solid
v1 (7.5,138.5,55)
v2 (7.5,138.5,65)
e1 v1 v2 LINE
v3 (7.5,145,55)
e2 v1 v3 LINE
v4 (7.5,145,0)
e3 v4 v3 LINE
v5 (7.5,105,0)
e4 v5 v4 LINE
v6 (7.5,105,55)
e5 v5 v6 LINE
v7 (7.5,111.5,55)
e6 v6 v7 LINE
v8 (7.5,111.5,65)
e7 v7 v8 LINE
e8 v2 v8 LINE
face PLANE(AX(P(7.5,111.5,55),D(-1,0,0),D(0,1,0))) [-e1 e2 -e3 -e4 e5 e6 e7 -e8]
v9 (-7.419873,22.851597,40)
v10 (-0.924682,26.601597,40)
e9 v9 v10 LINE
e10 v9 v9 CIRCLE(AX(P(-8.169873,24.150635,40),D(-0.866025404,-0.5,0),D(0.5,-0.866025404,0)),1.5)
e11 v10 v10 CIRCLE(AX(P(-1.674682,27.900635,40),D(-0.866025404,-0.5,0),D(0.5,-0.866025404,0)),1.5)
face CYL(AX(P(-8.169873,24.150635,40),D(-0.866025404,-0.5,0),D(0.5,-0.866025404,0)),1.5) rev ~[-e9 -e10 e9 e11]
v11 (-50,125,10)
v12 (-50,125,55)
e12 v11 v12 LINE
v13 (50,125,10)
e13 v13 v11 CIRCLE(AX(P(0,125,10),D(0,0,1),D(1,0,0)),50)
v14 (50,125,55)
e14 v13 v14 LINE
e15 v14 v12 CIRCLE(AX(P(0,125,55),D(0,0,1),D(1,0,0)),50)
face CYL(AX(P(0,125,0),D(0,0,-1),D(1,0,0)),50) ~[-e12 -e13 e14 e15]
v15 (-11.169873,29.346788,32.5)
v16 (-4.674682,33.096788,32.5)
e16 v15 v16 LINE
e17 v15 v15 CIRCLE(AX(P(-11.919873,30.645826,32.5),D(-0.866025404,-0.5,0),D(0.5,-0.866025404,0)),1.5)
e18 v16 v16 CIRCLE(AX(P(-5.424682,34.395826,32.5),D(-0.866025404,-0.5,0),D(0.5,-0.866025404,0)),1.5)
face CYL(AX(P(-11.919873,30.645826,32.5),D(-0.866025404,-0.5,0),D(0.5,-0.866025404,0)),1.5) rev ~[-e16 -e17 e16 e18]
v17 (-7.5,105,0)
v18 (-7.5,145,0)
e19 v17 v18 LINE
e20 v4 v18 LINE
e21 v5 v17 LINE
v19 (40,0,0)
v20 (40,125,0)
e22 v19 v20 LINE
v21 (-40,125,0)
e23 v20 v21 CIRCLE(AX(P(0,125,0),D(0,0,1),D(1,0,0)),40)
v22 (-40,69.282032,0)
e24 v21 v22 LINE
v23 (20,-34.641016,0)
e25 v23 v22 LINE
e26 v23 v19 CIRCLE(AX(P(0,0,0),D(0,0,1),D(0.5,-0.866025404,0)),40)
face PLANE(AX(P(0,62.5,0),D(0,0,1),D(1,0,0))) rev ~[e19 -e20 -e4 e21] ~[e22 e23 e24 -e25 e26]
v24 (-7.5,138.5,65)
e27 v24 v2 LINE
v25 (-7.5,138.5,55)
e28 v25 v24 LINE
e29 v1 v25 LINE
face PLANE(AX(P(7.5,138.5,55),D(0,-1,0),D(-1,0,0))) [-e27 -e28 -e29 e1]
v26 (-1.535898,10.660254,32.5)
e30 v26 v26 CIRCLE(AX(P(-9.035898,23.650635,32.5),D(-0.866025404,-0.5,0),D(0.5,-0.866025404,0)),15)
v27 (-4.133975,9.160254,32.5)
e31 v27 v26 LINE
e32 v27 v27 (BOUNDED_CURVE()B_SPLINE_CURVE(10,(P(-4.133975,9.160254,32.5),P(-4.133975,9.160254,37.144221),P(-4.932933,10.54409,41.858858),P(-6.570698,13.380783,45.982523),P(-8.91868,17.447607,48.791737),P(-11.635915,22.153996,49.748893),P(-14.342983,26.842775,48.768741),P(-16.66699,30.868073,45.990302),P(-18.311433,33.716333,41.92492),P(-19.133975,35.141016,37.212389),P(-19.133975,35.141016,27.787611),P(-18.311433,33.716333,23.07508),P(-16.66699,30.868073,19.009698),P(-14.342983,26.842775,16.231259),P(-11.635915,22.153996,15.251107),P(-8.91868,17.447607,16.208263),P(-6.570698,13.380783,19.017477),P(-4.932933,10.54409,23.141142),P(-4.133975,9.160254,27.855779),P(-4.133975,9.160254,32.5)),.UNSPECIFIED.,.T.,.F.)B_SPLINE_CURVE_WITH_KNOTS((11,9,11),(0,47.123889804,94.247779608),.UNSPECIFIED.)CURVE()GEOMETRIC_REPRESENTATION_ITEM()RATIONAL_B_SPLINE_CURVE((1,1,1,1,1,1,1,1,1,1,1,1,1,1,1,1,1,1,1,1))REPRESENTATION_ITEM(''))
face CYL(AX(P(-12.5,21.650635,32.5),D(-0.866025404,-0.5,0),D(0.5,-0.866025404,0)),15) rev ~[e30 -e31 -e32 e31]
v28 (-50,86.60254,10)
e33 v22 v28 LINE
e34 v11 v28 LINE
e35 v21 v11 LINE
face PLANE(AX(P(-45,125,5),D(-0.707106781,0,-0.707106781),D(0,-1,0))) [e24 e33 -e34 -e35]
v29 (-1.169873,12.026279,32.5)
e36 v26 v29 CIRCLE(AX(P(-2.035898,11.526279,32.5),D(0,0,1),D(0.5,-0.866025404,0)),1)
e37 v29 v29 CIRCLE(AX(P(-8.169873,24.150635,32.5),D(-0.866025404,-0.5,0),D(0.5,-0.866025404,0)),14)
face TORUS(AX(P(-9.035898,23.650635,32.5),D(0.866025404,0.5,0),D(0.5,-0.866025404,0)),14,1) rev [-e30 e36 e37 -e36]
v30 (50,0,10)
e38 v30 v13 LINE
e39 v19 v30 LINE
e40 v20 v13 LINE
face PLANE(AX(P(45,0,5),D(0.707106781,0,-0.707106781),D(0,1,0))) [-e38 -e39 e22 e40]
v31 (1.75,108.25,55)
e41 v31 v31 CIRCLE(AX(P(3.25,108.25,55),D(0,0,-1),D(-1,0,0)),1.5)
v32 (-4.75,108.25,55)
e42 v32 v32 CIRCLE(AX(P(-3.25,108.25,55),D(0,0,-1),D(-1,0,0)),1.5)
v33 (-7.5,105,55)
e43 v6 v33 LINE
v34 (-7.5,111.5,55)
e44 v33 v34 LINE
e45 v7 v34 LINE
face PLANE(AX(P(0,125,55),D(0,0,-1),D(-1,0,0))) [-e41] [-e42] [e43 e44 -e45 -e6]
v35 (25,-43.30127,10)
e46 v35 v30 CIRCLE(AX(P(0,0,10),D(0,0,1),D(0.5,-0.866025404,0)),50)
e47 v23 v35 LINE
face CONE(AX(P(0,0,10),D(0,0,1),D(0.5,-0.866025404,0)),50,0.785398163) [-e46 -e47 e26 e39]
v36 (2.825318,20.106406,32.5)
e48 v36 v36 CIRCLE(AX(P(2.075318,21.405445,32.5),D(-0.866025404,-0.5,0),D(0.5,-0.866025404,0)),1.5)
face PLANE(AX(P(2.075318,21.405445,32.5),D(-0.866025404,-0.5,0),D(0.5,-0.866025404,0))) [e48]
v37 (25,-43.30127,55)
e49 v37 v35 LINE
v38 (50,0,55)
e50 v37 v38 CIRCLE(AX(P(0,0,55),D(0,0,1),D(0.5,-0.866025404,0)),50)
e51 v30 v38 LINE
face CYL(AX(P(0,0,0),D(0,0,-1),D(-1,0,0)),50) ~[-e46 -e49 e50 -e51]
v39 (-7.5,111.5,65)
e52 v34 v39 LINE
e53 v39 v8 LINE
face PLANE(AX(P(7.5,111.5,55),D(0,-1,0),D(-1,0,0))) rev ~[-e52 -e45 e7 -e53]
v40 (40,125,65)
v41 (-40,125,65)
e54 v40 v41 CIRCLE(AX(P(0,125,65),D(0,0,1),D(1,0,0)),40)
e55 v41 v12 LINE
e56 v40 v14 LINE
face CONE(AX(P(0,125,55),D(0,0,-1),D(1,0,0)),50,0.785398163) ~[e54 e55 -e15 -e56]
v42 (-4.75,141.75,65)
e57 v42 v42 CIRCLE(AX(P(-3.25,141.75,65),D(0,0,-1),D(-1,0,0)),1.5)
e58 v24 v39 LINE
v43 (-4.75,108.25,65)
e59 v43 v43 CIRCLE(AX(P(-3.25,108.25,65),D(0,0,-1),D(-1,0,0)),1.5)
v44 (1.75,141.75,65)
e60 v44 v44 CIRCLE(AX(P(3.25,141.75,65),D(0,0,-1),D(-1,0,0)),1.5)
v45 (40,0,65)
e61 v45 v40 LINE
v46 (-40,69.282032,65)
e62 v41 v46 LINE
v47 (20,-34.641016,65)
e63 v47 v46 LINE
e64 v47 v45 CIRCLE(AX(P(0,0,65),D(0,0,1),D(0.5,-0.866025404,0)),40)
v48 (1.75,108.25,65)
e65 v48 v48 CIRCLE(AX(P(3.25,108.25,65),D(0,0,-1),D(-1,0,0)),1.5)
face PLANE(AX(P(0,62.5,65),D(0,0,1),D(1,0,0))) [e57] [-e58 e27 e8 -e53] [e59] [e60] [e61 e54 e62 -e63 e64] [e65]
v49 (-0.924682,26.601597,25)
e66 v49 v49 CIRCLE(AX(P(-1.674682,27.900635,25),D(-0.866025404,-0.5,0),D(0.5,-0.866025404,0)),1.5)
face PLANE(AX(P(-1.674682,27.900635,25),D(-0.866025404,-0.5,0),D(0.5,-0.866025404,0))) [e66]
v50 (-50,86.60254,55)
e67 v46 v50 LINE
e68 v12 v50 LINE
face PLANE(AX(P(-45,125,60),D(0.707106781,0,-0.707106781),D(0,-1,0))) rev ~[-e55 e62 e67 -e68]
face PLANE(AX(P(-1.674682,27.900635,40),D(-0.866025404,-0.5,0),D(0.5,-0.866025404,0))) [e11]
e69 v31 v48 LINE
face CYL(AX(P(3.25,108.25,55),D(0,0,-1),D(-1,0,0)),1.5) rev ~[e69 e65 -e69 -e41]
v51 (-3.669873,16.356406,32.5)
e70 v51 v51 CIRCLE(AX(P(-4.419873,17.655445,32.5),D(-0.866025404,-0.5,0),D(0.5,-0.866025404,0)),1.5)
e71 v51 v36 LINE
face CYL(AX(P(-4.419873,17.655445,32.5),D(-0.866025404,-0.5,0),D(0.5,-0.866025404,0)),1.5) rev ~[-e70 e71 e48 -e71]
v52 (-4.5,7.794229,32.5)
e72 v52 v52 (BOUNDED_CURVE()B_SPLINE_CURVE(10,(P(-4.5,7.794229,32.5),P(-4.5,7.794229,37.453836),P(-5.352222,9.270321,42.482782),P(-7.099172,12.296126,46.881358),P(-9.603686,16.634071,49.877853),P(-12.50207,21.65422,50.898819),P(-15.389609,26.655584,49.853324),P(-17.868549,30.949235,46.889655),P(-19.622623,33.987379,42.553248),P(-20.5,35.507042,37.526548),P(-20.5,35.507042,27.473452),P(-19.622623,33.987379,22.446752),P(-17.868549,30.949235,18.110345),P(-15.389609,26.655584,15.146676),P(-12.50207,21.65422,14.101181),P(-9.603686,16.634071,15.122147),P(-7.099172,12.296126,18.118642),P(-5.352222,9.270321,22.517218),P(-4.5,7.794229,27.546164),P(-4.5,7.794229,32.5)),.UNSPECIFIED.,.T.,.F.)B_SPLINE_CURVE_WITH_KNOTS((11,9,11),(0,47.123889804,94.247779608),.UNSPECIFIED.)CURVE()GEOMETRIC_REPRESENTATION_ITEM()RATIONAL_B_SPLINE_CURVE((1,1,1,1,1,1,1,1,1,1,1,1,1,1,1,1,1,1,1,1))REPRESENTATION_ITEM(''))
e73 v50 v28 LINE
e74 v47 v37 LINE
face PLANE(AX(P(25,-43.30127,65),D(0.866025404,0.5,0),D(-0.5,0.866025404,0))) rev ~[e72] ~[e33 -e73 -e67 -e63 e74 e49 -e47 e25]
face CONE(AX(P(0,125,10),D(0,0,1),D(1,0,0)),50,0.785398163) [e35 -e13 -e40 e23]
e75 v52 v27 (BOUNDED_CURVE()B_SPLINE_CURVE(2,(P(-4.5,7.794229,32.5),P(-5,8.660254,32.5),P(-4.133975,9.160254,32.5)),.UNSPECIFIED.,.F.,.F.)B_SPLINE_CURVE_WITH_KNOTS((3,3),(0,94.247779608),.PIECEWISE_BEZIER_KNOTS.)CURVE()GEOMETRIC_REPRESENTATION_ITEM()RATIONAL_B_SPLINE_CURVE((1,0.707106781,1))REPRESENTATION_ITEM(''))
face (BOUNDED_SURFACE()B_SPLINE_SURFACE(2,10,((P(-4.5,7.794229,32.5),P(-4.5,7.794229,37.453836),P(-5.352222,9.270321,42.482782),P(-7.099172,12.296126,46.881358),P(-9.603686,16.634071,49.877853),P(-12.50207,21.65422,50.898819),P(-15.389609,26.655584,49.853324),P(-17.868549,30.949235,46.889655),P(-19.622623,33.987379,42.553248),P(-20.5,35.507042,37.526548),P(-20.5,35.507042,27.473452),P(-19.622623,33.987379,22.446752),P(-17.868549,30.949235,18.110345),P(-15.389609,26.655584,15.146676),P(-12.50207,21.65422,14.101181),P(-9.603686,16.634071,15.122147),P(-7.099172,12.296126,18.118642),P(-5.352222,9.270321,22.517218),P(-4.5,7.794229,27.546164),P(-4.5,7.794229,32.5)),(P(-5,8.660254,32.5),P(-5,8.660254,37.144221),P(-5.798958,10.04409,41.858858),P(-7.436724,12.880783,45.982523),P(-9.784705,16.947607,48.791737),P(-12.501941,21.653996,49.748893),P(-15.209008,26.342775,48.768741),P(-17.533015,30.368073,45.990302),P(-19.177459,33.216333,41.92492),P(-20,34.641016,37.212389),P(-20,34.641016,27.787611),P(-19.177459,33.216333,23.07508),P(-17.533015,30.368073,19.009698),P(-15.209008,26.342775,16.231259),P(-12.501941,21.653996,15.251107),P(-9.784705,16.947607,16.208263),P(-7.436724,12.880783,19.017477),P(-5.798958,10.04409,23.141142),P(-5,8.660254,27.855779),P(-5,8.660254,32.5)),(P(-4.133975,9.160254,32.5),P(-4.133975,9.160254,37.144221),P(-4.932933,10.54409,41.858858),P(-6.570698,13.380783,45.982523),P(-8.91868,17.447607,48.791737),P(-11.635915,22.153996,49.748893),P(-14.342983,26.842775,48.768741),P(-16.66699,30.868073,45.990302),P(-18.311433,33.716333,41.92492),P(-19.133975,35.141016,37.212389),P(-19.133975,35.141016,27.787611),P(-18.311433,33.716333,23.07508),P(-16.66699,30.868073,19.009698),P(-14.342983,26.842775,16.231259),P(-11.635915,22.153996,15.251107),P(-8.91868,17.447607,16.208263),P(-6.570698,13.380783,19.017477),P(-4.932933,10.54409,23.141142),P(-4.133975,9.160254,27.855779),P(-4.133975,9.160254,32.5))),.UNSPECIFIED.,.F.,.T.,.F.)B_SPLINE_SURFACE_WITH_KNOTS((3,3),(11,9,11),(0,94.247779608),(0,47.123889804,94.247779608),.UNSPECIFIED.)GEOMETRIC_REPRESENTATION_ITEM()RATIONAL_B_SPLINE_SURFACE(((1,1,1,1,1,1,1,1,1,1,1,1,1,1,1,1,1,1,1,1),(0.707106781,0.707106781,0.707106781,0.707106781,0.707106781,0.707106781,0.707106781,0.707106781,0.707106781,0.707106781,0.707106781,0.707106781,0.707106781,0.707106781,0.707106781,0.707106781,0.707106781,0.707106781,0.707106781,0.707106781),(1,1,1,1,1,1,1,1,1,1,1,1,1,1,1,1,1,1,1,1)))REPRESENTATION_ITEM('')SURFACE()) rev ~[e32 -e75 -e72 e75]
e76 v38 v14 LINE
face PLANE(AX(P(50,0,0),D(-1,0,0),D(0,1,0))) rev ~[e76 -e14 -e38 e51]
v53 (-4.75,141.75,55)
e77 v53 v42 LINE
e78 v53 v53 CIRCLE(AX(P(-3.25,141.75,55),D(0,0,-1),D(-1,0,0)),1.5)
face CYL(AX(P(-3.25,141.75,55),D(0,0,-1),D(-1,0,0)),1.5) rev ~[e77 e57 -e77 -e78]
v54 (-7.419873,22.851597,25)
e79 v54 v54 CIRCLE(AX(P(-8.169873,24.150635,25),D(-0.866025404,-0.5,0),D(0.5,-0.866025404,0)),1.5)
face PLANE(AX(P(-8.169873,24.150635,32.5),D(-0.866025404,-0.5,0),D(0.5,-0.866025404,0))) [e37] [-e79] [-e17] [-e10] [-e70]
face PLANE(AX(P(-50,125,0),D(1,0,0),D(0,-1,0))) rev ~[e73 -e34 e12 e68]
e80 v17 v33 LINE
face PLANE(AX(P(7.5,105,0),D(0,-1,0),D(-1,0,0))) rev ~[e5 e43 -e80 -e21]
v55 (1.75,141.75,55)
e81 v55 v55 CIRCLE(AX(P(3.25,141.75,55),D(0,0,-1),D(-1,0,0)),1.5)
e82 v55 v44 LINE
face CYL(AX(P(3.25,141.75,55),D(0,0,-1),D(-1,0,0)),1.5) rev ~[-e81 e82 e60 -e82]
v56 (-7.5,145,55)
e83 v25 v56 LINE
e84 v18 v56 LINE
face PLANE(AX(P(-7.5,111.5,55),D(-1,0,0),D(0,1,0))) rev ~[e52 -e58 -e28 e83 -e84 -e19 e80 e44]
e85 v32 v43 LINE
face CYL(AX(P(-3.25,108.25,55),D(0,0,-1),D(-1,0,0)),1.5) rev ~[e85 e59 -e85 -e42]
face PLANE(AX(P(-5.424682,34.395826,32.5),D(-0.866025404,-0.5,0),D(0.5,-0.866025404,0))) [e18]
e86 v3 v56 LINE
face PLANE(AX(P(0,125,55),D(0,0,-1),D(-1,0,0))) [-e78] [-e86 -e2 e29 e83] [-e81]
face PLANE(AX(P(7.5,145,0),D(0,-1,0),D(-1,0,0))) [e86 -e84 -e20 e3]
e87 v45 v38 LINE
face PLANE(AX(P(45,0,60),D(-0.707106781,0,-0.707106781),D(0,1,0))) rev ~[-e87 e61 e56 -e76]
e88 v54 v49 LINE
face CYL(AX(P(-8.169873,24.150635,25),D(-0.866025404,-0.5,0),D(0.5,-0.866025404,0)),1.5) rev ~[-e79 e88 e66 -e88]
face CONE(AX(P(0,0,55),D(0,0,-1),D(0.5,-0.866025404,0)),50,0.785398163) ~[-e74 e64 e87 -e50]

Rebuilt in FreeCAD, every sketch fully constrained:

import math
import FreeCAD as App
import Part
import Sketcher
from FreeCAD import Vector
Q = App.Units.Quantity


def edges_at(feature, points):
    """Names of the edges that pass closest to the given points."""
    edges = feature.Shape.Edges
    near = lambda p: min(range(len(edges)), key=lambda i: edges[i].distToShape(Part.Vertex(*p))[0])
    return sorted({f"Edge{near(p) + 1}" for p in points})


def add_polygon(sketch, points):
    """Adds a closed chain of lines whose ends are joined by coincident constraints."""
    first, n = sketch.GeometryCount, len(points)
    for a, b in zip(points, points[1:] + points[:1]):
        sketch.addGeometry(Part.LineSegment(App.Vector(*a, 0), App.Vector(*b, 0)), False)
    for i in range(n):
        sketch.addConstraint(Sketcher.Constraint("Coincident", first + i, 2, first + (i + 1) % n, 1))

doc = App.newDocument("Part")
body = doc.addObject("PartDesign::Body", "Body")

# Sketch on XY plane
sketch1 = body.newObject("Sketcher::SketchObject", "Sketch")
sketch1.AttachmentSupport = (doc.getObject("XY_Plane"), [""])
sketch1.MapMode = "FlatFace"
sketch1.addGeometry([
    Part.LineSegment(Vector(-50, 125, 0), Vector(-50, 0, 0)),
    Part.ArcOfCircle(Part.Circle(Vector(0, 0, 0), Vector(0, 0, 1), 50), math.radians(180), math.radians(360)),
    Part.LineSegment(Vector(50, 0, 0), Vector(50, 125, 0)),
    Part.ArcOfCircle(Part.Circle(Vector(0, 125, 0), Vector(0, 0, 1), 50), math.radians(0), math.radians(180)),
], False)
sketch1.addConstraint([
    Sketcher.Constraint("Tangent", 0, 2, 1, 1),
    Sketcher.Constraint("Tangent", 1, 2, 2, 1),
    Sketcher.Constraint("Tangent", 2, 2, 3, 1),
    Sketcher.Constraint("Tangent", 3, 2, 0, 1),
    Sketcher.Constraint("Vertical", 0),
    Sketcher.Constraint("Vertical", 2),
    Sketcher.Constraint("Coincident", 1, 3, -1, 1),
    Sketcher.Constraint("Radius", 1, Q("50 mm")),
    Sketcher.Constraint("DistanceY", 0, 2, 0, 1, Q("125 mm")),
])
pad1 = body.newObject("PartDesign::Pad", "Pad")
pad1.Profile = sketch1
pad1.Length = 65

# Sketch on XY plane
sketch2 = body.newObject("Sketcher::SketchObject", "Sketch001")
sketch2.AttachmentSupport = (doc.getObject("XY_Plane"), [""])
sketch2.MapMode = "FlatFace"
sketch2.AttachmentOffset = App.Placement(Vector(0, 0, 65), App.Rotation())
add_polygon(sketch2, [(261, -452), (25, -43), (-50, 87), (-50, -472), (10, -1413), (321, -1393)])  # lines 0-5
sketch2.addConstraint([
    Sketcher.Constraint("Vertical", 2),
    Sketcher.Constraint("Parallel", 0, 1),
    Sketcher.Constraint("Perpendicular", 3, 4),
    Sketcher.Constraint("Perpendicular", 4, 5),
    Sketcher.Constraint("Equal", 3, 5),
    Sketcher.Constraint("Angle", 0, Q("120 deg")),
    Sketcher.Constraint("Distance", 1, Q("150 mm")),
    Sketcher.Constraint("DistanceX", -1, 1, 0, 2, Q("25 mm")),
    Sketcher.Constraint("DistanceY", 3, 2, 4, 2, Q("19.888001 mm")),
    Sketcher.Constraint("DistanceX", -1, 1, 3, 2, Q("10.2335 mm")),
    Sketcher.Constraint("DistanceY", 2, 2, 2, 1, Q("558.253684 mm")),
    Sketcher.Constraint("DistanceY", 0, 2, -1, 1, Q("43.30127 mm")),
])
pocket1 = body.newObject("PartDesign::Pocket", "Pocket")
pocket1.Profile = sketch2
pocket1.Type = "ThroughAll"

# Sketch on an angled plane
sketch3 = body.newObject("Sketcher::SketchObject", "Sketch002")
sketch3.Placement = App.Placement(Vector(0, 0, 0), App.Rotation(Vector(0, 0, 1), Vector(-0.5, 0.866025404, 0), Vector(-0.866025404, -0.5, 0), "ZXY"))
sketch3.addGeometry(Part.Circle(Vector(32, 25, 0), Vector(0, 0, 1), 15), False)
sketch3.addConstraint([
    Sketcher.Constraint("Diameter", 0, Q("30 mm")),
    Sketcher.Constraint("DistanceY", -1, 1, 0, 3, Q("25 mm")),
    Sketcher.Constraint("DistanceX", -1, 1, 0, 3, Q("32.5 mm")),
])
pocket2 = body.newObject("PartDesign::Pocket", "Pocket001")
pocket2.Profile = sketch3
pocket2.Length = 5

# Sketch on an angled plane
sketch4 = body.newObject("Sketcher::SketchObject", "Sketch003")
sketch4.Placement = App.Placement(Vector(4.330127, 2.5, 0), App.Rotation(Vector(0, 0, 1), Vector(-0.5, 0.866025404, 0), Vector(-0.866025404, -0.5, 0), "ZXY"))
sketch4.addGeometry([
    Part.Circle(Vector(40, 25, 0), Vector(0, 0, 1), 1.5),
    Part.Circle(Vector(32.5, 32.5, 0), Vector(0, 0, 1), 1.5),
    Part.Circle(Vector(32.5, 17.5, 0), Vector(0, 0, 1), 1.5),
    Part.Circle(Vector(25, 25, 0), Vector(0, 0, 1), 1.5),
], False)
sketch4.addConstraint([
    Sketcher.Constraint("Equal", 0, 1),
    Sketcher.Constraint("Equal", 1, 2),
    Sketcher.Constraint("Equal", 2, 3),
    Sketcher.Constraint("Horizontal", 0, 3, 3, 3),
    Sketcher.Constraint("Vertical", 1, 3, 2, 3),
    Sketcher.Constraint("Diameter", 0, Q("3 mm")),
    Sketcher.Constraint("DistanceX", -1, 1, 0, 3, Q("40 mm")),
    Sketcher.Constraint("DistanceY", -1, 1, 0, 3, Q("25 mm")),
    Sketcher.Constraint("DistanceX", -1, 1, 3, 3, Q("25 mm")),
    Sketcher.Constraint("DistanceY", 2, 3, 1, 3, Q("15 mm")),
    Sketcher.Constraint("DistanceX", -1, 1, 1, 3, Q("32.5 mm")),
    Sketcher.Constraint("DistanceY", -1, 1, 1, 3, Q("32.5 mm")),
])
pocket3 = body.newObject("PartDesign::Pocket", "Pocket002")
pocket3.Profile = sketch4
pocket3.Length = 7.5
doc.recompute()

chamfer = body.newObject("PartDesign::Chamfer", "Chamfer")
chamfer.Base = (pocket3, edges_at(pocket3, [
    (43.301, -25, 0),
    (43.301, -25, 65),
    (50, 62.5, 65),
    (0, 175, 65),
    (50, 62.5, 0),
    (-50, 105.801, 0),
    (0, 175, 0),
    (-50, 105.801, 65),
]))
chamfer.Size = 10

# Sketch on XY plane
sketch5 = body.newObject("Sketcher::SketchObject", "Sketch004")
sketch5.AttachmentSupport = (doc.getObject("XY_Plane"), [""])
sketch5.MapMode = "FlatFace"
add_polygon(sketch5, [(8, 145), (8, 105), (-8, 105), (-8, 145)])  # lines 0-3
sketch5.addConstraint([
    Sketcher.Constraint("Vertical", 0),
    Sketcher.Constraint("Horizontal", 1),
    Sketcher.Constraint("Vertical", 2),
    Sketcher.Constraint("Horizontal", 3),
    Sketcher.Constraint("DistanceX", 1, 2, 1, 1, Q("15 mm")),
    Sketcher.Constraint("DistanceY", 0, 2, 0, 1, Q("40 mm")),
    Sketcher.Constraint("DistanceY", -1, 1, 0, 2, Q("105 mm")),
    Sketcher.Constraint("DistanceX", -1, 1, 0, 2, Q("7.5 mm")),
])
pocket4 = body.newObject("PartDesign::Pocket", "Pocket003")
pocket4.Profile = sketch5
pocket4.Length = 55
pocket4.Reversed = True

# Sketch on XY plane
sketch6 = body.newObject("Sketcher::SketchObject", "Sketch005")
sketch6.AttachmentSupport = (doc.getObject("XY_Plane"), [""])
sketch6.MapMode = "FlatFace"
sketch6.AttachmentOffset = App.Placement(Vector(0, 0, 55), App.Rotation())
add_polygon(sketch6, [(7.5, 138.5), (7.5, 111.5), (-7.5, 111.5), (-7.5, 138.5)])  # lines 0-3
sketch6.addGeometry(Part.Circle(Vector(3.2, 108.2, 0), Vector(0, 0, 1), 1.5), False)  # 4
sketch6.addGeometry(Part.Circle(Vector(-3.2, 108.2, 0), Vector(0, 0, 1), 1.5), False)  # 5
sketch6.addGeometry(Part.Circle(Vector(3.2, 141.8, 0), Vector(0, 0, 1), 1.5), False)  # 6
sketch6.addGeometry(Part.Circle(Vector(-3.2, 141.8, 0), Vector(0, 0, 1), 1.5), False)  # 7
sketch6.addConstraint([
    Sketcher.Constraint("Vertical", 0),
    Sketcher.Constraint("Horizontal", 1),
    Sketcher.Constraint("Vertical", 2),
    Sketcher.Constraint("Horizontal", 3),
    Sketcher.Constraint("Equal", 4, 5),
    Sketcher.Constraint("Equal", 5, 6),
    Sketcher.Constraint("Equal", 6, 7),
    Sketcher.Constraint("Symmetric", 4, 3, 5, 3, -2),
    Sketcher.Constraint("Symmetric", 6, 3, 7, 3, -2),
    Sketcher.Constraint("Vertical", 4, 3, 6, 3),
    Sketcher.Constraint("Diameter", 4, Q("3 mm")),
    Sketcher.Constraint("DistanceX", 1, 2, 1, 1, Q("15 mm")),
    Sketcher.Constraint("DistanceY", 0, 2, 0, 1, Q("27 mm")),
    Sketcher.Constraint("DistanceX", -1, 1, 0, 2, Q("7.5 mm")),
    Sketcher.Constraint("DistanceY", -1, 1, 0, 2, Q("111.5 mm")),
    Sketcher.Constraint("DistanceX", 5, 3, 4, 3, Q("6.5 mm")),
    Sketcher.Constraint("DistanceY", 4, 3, 6, 3, Q("33.5 mm")),
    Sketcher.Constraint("DistanceY", -1, 1, 4, 3, Q("108.25 mm")),
])
pocket5 = body.newObject("PartDesign::Pocket", "Pocket004")
pocket5.Profile = sketch6
pocket5.Type = "ThroughAll"
pocket5.Reversed = True
doc.recompute()

fillet = body.newObject("PartDesign::Fillet", "Fillet")
fillet.Base = (pocket5, edges_at(pocket5, [(-15.67, 37.141, 32.5), (-20, 34.641, 32.5)]))
fillet.Radius = 1

doc.recompute()
